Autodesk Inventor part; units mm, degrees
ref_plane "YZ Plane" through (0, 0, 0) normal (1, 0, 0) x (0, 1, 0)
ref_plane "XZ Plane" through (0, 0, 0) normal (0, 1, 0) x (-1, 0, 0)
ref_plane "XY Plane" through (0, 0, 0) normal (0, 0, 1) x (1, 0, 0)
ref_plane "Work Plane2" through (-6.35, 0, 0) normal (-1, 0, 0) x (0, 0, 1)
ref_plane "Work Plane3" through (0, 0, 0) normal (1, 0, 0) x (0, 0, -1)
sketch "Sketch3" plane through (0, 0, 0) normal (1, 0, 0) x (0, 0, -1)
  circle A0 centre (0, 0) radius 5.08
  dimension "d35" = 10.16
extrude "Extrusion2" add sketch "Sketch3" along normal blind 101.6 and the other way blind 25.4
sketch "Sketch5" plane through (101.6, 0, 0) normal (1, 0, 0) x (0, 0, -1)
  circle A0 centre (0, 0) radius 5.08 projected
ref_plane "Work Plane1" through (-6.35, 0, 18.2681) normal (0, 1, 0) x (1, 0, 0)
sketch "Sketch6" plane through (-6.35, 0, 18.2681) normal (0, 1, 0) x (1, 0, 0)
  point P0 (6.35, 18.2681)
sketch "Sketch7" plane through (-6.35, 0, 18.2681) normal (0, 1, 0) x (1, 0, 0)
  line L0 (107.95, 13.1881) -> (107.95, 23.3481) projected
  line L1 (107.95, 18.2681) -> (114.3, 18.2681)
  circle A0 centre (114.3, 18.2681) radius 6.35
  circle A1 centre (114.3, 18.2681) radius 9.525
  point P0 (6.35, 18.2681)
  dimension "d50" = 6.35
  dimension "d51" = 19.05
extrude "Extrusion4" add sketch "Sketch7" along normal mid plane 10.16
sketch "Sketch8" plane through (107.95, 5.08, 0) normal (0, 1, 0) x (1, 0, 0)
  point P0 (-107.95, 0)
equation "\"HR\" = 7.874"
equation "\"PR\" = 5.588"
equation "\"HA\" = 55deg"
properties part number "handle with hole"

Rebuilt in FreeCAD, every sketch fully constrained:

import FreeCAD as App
import Part
import Sketcher
Q = App.Units.Quantity

doc = App.newDocument("Part")
params = doc.addObject("Spreadsheet::Sheet", "Params")
for row, (alias, value) in enumerate([
    ("sketch1_diameter", "0.4 in"),
    ("pad1_length", "4 in"),
    ("pad1_length2", "1 in"),
    ("sketch2_diameter", "0.5 in"),
    ("sketch2_diameter2", "0.75 in"),
    ("pad2_length", "0.4 in"),
], start=1):
    params.set(f"A{row}", alias)
    params.set(f"B{row}", "=" + value)
    params.setAlias(f"B{row}", alias)

body = doc.addObject("PartDesign::Body", "Body")

# Sketch on YZ plane
sketch1 = body.newObject("Sketcher::SketchObject", "Sketch")
sketch1.AttachmentSupport = (doc.getObject("YZ_Plane"), [""])
sketch1.MapMode = "FlatFace"
sketch1.addGeometry(Part.Circle(App.Vector(0, 0, 0), App.Vector(0, 0, 1), 5), False)
sketch1.addConstraint([
    Sketcher.Constraint("Coincident", 0, 3, -1, 1),
    Sketcher.Constraint("Diameter", 0, Q("0.4 in")),
])
sketch1.setExpression("Constraints[1]", "Params.sketch1_diameter")
pad1 = body.newObject("PartDesign::Pad", "Pad")
pad1.Profile = sketch1
pad1.Type = "TwoLengths"
pad1.setExpression("Length", "Params.pad1_length")
pad1.setExpression("Length2", "Params.pad1_length2")

# Sketch on XZ plane
sketch2 = body.newObject("Sketcher::SketchObject", "Sketch001")
sketch2.AttachmentSupport = (doc.getObject("XZ_Plane"), [""])
sketch2.MapMode = "FlatFace"
sketch2.addGeometry([
    Part.Circle(App.Vector(108, 0, 0), App.Vector(0, 0, 1), 10),
    Part.Circle(App.Vector(108, 0, 0), App.Vector(0, 0, 1), 6),
], False)
sketch2.addConstraint([
    Sketcher.Constraint("Coincident", 1, 3, 0, 3),
    Sketcher.Constraint("PointOnObject", 0, 3, -1),
    Sketcher.Constraint("Diameter", 1, Q("0.5 in")),
    Sketcher.Constraint("Diameter", 0, Q("0.75 in")),
    Sketcher.Constraint("DistanceX", -1, 1, 0, 3, Q("4.25 in")),
])
sketch2.setExpression("Constraints[2]", "Params.sketch2_diameter")
sketch2.setExpression("Constraints[3]", "Params.sketch2_diameter2")
pad2 = body.newObject("PartDesign::Pad", "Pad001")
pad2.Profile = sketch2
pad2.setExpression("Length", "Params.pad2_length")
pad2.Midplane = True

doc.recompute()
